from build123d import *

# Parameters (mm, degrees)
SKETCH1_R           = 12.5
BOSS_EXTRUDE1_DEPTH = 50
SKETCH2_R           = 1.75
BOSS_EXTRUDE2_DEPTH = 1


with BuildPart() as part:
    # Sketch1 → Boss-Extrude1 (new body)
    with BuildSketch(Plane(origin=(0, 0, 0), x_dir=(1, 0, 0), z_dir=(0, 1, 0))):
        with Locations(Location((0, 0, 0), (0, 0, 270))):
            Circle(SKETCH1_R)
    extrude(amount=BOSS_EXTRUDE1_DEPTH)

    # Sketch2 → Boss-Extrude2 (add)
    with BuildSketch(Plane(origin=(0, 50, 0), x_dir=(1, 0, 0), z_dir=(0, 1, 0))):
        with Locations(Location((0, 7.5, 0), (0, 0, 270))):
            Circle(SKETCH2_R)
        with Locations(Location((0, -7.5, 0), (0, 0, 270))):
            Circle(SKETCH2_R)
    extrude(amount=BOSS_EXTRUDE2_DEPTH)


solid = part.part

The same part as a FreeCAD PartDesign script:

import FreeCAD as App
import Part
import Sketcher

doc = App.newDocument("Part")
body = doc.addObject("PartDesign::Body", "Body")

# Sketch on XZ plane
sketch1 = body.newObject("Sketcher::SketchObject", "Sketch")
sketch1.AttachmentSupport = (doc.getObject("XZ_Plane"), [""])
sketch1.MapMode = "FlatFace"
sketch1.addGeometry(Part.Circle(App.Vector(0, 0, 0), App.Vector(0, 0, 1), 12.5), False)
sketch1.addConstraint(Sketcher.Constraint("Coincident", 0, 3, -1, 1))
sketch1.addConstraint(Sketcher.Constraint("Diameter", 0, 25.0))
pad1 = body.newObject("PartDesign::Pad", "Pad")
pad1.Profile = sketch1
pad1.Length = 50
pad1.Reversed = True

# Sketch on XZ plane
sketch2 = body.newObject("Sketcher::SketchObject", "Sketch001")
sketch2.AttachmentSupport = (doc.getObject("XZ_Plane"), [""])
sketch2.MapMode = "FlatFace"
sketch2.AttachmentOffset = App.Placement(App.Vector(0, 0, -50), App.Rotation())
sketch2.addGeometry(Part.Circle(App.Vector(0, -7.5, 0), App.Vector(0, 0, 1), 1.75), False)
sketch2.addGeometry(Part.Circle(App.Vector(0, 7.5, 0), App.Vector(0, 0, 1), 1.75), False)
sketch2.addConstraint(Sketcher.Constraint("Equal", 0, 1))
sketch2.addConstraint(Sketcher.Constraint("Symmetric", 0, 3, 1, 3, -1, 1))
sketch2.addConstraint(Sketcher.Constraint("PointOnObject", 0, 3, -2))
sketch2.addConstraint(Sketcher.Constraint("Diameter", 0, 3.5))
sketch2.addConstraint(Sketcher.Constraint("DistanceY", 0, 3, 1, 3, 15.0))
pad2 = body.newObject("PartDesign::Pad", "Pad001")
pad2.Profile = sketch2
pad2.Length = 1
pad2.Reversed = True

doc.recompute()
